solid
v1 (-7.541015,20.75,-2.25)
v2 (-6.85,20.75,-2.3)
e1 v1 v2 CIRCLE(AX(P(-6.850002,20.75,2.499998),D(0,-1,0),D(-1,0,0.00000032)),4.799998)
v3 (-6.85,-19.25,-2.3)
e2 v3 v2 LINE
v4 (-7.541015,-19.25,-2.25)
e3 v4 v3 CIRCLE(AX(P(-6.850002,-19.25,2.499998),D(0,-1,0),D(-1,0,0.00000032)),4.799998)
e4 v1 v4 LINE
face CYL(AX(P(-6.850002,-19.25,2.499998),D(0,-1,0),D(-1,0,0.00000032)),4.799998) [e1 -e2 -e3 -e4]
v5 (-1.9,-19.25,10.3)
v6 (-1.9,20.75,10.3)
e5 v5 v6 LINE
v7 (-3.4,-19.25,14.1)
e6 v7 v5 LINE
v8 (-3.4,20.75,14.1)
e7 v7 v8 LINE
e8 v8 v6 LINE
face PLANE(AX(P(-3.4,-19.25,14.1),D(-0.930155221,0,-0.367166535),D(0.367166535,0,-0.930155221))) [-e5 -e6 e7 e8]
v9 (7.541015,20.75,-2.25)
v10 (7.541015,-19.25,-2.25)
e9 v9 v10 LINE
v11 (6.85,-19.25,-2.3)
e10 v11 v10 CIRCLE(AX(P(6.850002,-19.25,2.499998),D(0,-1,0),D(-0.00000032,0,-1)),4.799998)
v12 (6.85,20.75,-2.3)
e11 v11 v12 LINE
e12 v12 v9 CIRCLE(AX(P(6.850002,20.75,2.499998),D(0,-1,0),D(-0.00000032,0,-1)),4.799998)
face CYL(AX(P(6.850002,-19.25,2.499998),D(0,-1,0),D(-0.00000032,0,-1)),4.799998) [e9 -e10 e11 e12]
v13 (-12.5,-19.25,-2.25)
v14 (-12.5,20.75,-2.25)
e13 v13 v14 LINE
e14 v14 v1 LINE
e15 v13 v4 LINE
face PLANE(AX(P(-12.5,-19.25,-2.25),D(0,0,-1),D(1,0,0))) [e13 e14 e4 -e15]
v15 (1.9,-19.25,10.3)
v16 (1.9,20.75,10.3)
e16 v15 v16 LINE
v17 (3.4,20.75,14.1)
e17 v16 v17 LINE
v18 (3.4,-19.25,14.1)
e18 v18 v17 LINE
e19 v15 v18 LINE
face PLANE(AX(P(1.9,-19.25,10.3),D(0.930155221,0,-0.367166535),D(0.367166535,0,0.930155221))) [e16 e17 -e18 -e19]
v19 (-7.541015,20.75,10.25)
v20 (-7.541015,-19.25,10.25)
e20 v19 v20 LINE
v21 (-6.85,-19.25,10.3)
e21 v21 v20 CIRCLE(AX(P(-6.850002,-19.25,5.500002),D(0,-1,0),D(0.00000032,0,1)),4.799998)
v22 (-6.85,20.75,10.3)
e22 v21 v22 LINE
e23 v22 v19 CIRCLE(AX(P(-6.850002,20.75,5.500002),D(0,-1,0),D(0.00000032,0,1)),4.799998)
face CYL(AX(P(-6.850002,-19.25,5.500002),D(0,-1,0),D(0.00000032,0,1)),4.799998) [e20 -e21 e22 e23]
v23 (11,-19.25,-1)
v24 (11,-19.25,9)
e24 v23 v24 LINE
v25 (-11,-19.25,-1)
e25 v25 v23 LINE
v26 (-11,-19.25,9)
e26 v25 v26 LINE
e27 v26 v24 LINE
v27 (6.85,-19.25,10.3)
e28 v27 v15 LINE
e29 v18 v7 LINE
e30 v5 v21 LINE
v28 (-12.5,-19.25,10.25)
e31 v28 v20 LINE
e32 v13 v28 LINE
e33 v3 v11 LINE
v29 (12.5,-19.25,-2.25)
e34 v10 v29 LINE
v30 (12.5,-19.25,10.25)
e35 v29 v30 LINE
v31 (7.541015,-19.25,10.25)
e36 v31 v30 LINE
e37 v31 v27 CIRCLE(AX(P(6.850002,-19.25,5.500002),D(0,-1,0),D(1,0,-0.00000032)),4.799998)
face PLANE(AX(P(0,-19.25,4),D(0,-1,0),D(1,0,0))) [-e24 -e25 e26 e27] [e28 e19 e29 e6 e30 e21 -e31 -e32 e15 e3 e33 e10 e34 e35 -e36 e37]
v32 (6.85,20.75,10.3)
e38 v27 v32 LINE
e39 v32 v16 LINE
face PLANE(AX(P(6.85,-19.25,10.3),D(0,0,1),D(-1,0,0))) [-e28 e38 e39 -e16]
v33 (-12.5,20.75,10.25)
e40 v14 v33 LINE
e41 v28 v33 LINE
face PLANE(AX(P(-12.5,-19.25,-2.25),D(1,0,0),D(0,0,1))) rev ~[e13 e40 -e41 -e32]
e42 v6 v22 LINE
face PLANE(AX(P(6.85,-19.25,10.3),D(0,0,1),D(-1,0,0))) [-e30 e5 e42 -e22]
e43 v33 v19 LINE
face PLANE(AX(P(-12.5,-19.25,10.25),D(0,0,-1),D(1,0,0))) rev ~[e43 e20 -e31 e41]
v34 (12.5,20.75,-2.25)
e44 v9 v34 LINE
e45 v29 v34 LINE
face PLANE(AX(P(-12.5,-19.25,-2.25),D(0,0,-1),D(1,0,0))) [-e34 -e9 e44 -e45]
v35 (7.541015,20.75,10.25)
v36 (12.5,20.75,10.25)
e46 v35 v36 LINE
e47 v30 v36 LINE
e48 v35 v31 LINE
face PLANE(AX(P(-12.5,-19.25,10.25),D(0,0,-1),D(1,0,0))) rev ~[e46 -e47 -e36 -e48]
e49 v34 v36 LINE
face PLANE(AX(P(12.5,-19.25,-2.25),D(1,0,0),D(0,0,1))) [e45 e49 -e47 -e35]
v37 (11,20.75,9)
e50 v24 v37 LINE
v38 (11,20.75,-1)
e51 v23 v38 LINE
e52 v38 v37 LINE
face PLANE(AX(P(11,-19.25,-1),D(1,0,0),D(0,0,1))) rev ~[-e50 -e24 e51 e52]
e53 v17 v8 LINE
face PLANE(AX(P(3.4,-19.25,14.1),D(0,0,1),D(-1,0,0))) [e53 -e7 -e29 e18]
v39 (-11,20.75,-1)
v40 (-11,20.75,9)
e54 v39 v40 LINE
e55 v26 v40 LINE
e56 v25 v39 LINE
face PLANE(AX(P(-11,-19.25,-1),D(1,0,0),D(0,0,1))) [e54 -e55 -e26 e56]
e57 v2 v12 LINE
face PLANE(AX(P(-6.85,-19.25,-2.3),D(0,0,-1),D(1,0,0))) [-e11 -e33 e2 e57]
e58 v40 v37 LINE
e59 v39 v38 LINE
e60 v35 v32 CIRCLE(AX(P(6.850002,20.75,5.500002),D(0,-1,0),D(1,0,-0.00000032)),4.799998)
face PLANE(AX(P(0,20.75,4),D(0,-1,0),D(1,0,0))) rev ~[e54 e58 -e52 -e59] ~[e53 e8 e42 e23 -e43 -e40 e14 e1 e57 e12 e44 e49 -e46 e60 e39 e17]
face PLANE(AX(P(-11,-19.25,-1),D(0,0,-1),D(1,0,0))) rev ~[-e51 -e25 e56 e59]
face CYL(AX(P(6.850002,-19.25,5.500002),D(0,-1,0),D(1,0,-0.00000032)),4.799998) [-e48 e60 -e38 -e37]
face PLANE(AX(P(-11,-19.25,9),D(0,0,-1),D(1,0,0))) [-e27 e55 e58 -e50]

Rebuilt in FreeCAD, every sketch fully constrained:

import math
import FreeCAD as App
import Part
import Sketcher


def edges_at(feature, points):
    """Names of the edges that pass closest to the given points."""
    edges = feature.Shape.Edges
    near = lambda p: min(range(len(edges)), key=lambda i: edges[i].distToShape(Part.Vertex(*p))[0])
    return sorted({f"Edge{near(p) + 1}" for p in points})


def add_polygon(sketch, points):
    """Adds a closed chain of lines whose ends are joined by coincident constraints."""
    first, n = sketch.GeometryCount, len(points)
    for a, b in zip(points, points[1:] + points[:1]):
        sketch.addGeometry(Part.LineSegment(App.Vector(*a, 0), App.Vector(*b, 0)), False)
    for i in range(n):
        sketch.addConstraint(Sketcher.Constraint("Coincident", first + i, 2, first + (i + 1) % n, 1))

doc = App.newDocument("Part")
body = doc.addObject("PartDesign::Body", "Body")

sketch1 = doc.addObject("Sketcher::SketchObject", "Sketch")
body.addObject(sketch1)
sketch1.AttachmentSupport = (doc.XY_Plane, [""])
sketch1.MapMode = "FlatFace"
add_polygon(sketch1, [(-9.35, 19.25), (-9.35, -19.25), (9.35, -19.25), (9.35, 19.25)])
sketch1.addConstraint([
    Sketcher.Constraint("Vertical", 0),
    Sketcher.Constraint("Horizontal", 1),
    Sketcher.Constraint("Vertical", 2),
    Sketcher.Constraint("Horizontal", 3),
    Sketcher.Constraint("Symmetric", 0, 2, 2, 2, -1, 1),
    Sketcher.Constraint("DistanceX", 1, 1, 1, 2, 18.7),
    Sketcher.Constraint("DistanceY", 0, 2, 0, 1, 38.5),
])
pad1 = doc.addObject("PartDesign::Pad", "Pad")
body.addObject(pad1)
pad1.Profile = sketch1
pad1.Length = 8
doc.recompute()

fillet = doc.addObject("PartDesign::Fillet", "Fillet")
body.addObject(fillet)
fillet.Base = (pad1, edges_at(pad1, [
    (9.35, 0, 8),
    (9.35, 0, 0),
    (-9.35, 0, 8),
    (-9.35, 0, 0),
]))
fillet.Radius = 2.5
body2 = doc.addObject("PartDesign::Body", "Body001")

sketch2 = doc.addObject("Sketcher::SketchObject", "Sketch001")
body2.addObject(sketch2)
sketch2.AttachmentSupport = (doc.getObject("XZ_Plane001"), [""])
sketch2.MapMode = "FlatFace"
sketch2.AttachmentOffset = App.Placement(App.Vector(0, 0, 19.25), App.Rotation())
sketch2.addGeometry([
    Part.LineSegment(App.Vector(-11.65, 5.5, 0), App.Vector(-11.65, 2.5, 0)),
    Part.ArcOfCircle(Part.Circle(App.Vector(-6.850002, 2.499998, 0), App.Vector(0, 0, 1), 4.799998), math.radians(179.999982), math.radians(270.000018)),
    Part.LineSegment(App.Vector(-6.85, -2.3, 0), App.Vector(6.85, -2.3, 0)),
    Part.ArcOfCircle(Part.Circle(App.Vector(6.850002, 2.499998, 0), App.Vector(0, 0, 1), 4.799998), math.radians(-90.000018), math.radians(0.000018)),
    Part.LineSegment(App.Vector(11.65, 2.5, 0), App.Vector(11.65, 5.5, 0)),
    Part.ArcOfCircle(Part.Circle(App.Vector(6.850002, 5.500002, 0), App.Vector(0, 0, 1), 4.799998), math.radians(-0.000018), math.radians(90.000018)),
    Part.LineSegment(App.Vector(6.85, 10.3, 0), App.Vector(-6.85, 10.3, 0)),
    Part.ArcOfCircle(Part.Circle(App.Vector(-6.850002, 5.500002, 0), App.Vector(0, 0, 1), 4.799998), math.radians(89.999982), math.radians(180.000018)),
    Part.ArcOfCircle(Part.Circle(App.Vector(-6.85, 5.5, 0), App.Vector(0, 0, 1), 2.8), math.radians(89.999999), math.radians(180.000001)),
    Part.LineSegment(App.Vector(-6.85, 8.3, 0), App.Vector(6.85, 8.3, 0)),
    Part.ArcOfCircle(Part.Circle(App.Vector(6.85, 5.5, 0), App.Vector(0, 0, 1), 2.8), math.radians(-0.000001), math.radians(90.000001)),
    Part.LineSegment(App.Vector(9.65, 5.5, 0), App.Vector(9.65, 2.5, 0)),
    Part.ArcOfCircle(Part.Circle(App.Vector(6.85, 2.5, 0), App.Vector(0, 0, 1), 2.8), math.radians(-90.000001), math.radians(0.000001)),
    Part.LineSegment(App.Vector(6.85, -0.3, 0), App.Vector(-6.85, -0.3, 0)),
    Part.ArcOfCircle(Part.Circle(App.Vector(-6.85, 2.5, 0), App.Vector(0, 0, 1), 2.8), math.radians(179.999999), math.radians(270.000001)),
    Part.LineSegment(App.Vector(-9.65, 2.5, 0), App.Vector(-9.65, 5.5, 0)),
], False)
sketch2.addConstraint([
    Sketcher.Constraint("Tangent", 0, 2, 1, 1),
    Sketcher.Constraint("Tangent", 1, 2, 2, 1),
    Sketcher.Constraint("Tangent", 2, 2, 3, 1),
    Sketcher.Constraint("Tangent", 3, 2, 4, 1),
    Sketcher.Constraint("Tangent", 4, 2, 5, 1),
    Sketcher.Constraint("Tangent", 5, 2, 6, 1),
    Sketcher.Constraint("Tangent", 6, 2, 7, 1),
    Sketcher.Constraint("Tangent", 7, 2, 0, 1),
    Sketcher.Constraint("Tangent", 8, 1, 9, 1),
    Sketcher.Constraint("Tangent", 9, 2, 10, 2),
    Sketcher.Constraint("Tangent", 10, 1, 11, 1),
    Sketcher.Constraint("Tangent", 11, 2, 12, 2),
    Sketcher.Constraint("Tangent", 12, 1, 13, 1),
    Sketcher.Constraint("Tangent", 13, 2, 14, 2),
    Sketcher.Constraint("Tangent", 14, 1, 15, 1),
    Sketcher.Constraint("Tangent", 15, 2, 8, 2),
    Sketcher.Constraint("Vertical", 0),
    Sketcher.Constraint("Horizontal", 2),
    Sketcher.Constraint("Vertical", 4),
    Sketcher.Constraint("Horizontal", 6),
    Sketcher.Constraint("Horizontal", 9),
    Sketcher.Constraint("Vertical", 11),
    Sketcher.Constraint("Horizontal", 13),
    Sketcher.Constraint("Vertical", 15),
    Sketcher.Constraint("Coincident", 8, 3, 7, 3),
    Sketcher.Constraint("Coincident", 10, 3, 5, 3),
    Sketcher.Constraint("Coincident", 12, 3, 3, 3),
    Sketcher.Constraint("Equal", 1, 3),
    Sketcher.Constraint("Equal", 3, 5),
    Sketcher.Constraint("Equal", 5, 7),
    Sketcher.Constraint("Equal", 12, 14),
    Sketcher.Constraint("Radius", 1, 4.799998),
    Sketcher.Constraint("Radius", 8, 2.8),
    Sketcher.Constraint("DistanceY", 0, 2, 0, 1, 3.0),
    Sketcher.Constraint("DistanceX", 2, 1, 2, 2, 13.7),
    Sketcher.Constraint("DistanceY", -1, 1, 1, 3, 2.499998),
    Sketcher.Constraint("DistanceX", 1, 3, -1, 1, 6.850002),
])
pad2 = doc.addObject("PartDesign::Pad", "Pad001")
body2.addObject(pad2)
pad2.Profile = sketch2
pad2.Length = 40
pad2.Reversed = True

sketch3 = doc.addObject("Sketcher::SketchObject", "Sketch002")
body2.addObject(sketch3)
sketch3.AttachmentSupport = (doc.getObject("XZ_Plane001"), [""])
sketch3.MapMode = "FlatFace"
sketch3.AttachmentOffset = App.Placement(App.Vector(0, 0, 19.25), App.Rotation())
add_polygon(sketch3, [(3.4, 14.1), (-3.4, 14.1), (-1.9, 10.3), (1.9, 10.3)])
sketch3.addConstraint([
    Sketcher.Constraint("Horizontal", 0),
    Sketcher.Constraint("Horizontal", 2),
    Sketcher.Constraint("Equal", 1, 3),
    Sketcher.Constraint("DistanceX", 0, 2, 0, 1, 6.8),
    Sketcher.Constraint("DistanceX", 2, 1, 2, 2, 3.8),
    Sketcher.Constraint("DistanceX", 0, 2, -1, 1, 3.4),
    Sketcher.Constraint("DistanceY", -1, 1, 0, 2, 14.1),
    Sketcher.Constraint("DistanceY", -1, 1, 1, 2, 10.3),
])
pad3 = doc.addObject("PartDesign::Pad", "Pad002")
body2.addObject(pad3)
pad3.Profile = sketch3
pad3.Length = 40
pad3.Reversed = True

sketch4 = doc.addObject("Sketcher::SketchObject", "Sketch003")
body2.addObject(sketch4)
sketch4.AttachmentSupport = (doc.getObject("XZ_Plane001"), [""])
sketch4.MapMode = "FlatFace"
sketch4.AttachmentOffset = App.Placement(App.Vector(0, 0, 19.25), App.Rotation())
add_polygon(sketch4, [(-12.5, 10.25), (-12.5, -2.25), (12.5, -2.25), (12.5, 10.25)])
sketch4.addConstraint([
    Sketcher.Constraint("Vertical", 0),
    Sketcher.Constraint("Horizontal", 1),
    Sketcher.Constraint("Vertical", 2),
    Sketcher.Constraint("Horizontal", 3),
    Sketcher.Constraint("DistanceX", 1, 1, 1, 2, 25.0),
    Sketcher.Constraint("DistanceY", 0, 2, 0, 1, 12.5),
    Sketcher.Constraint("DistanceX", 0, 2, -1, 1, 12.5),
    Sketcher.Constraint("DistanceY", 0, 2, -1, 1, 2.25),
])
pad4 = doc.addObject("PartDesign::Pad", "Pad003")
body2.addObject(pad4)
pad4.Profile = sketch4
pad4.Length = 40
pad4.Reversed = True

sketch5 = doc.addObject("Sketcher::SketchObject", "Sketch004")
body2.addObject(sketch5)
sketch5.AttachmentSupport = (doc.getObject("XZ_Plane001"), [""])
sketch5.MapMode = "FlatFace"
sketch5.AttachmentOffset = App.Placement(App.Vector(0, 0, 19.25), App.Rotation())
add_polygon(sketch5, [(-11, 9), (-11, -1), (11, -1), (11, 9)])
sketch5.addConstraint([
    Sketcher.Constraint("Vertical", 0),
    Sketcher.Constraint("Horizontal", 1),
    Sketcher.Constraint("Vertical", 2),
    Sketcher.Constraint("Horizontal", 3),
    Sketcher.Constraint("DistanceX", 1, 1, 1, 2, 22.0),
    Sketcher.Constraint("DistanceY", 0, 2, 0, 1, 10.0),
    Sketcher.Constraint("DistanceX", 0, 2, -1, 1, 11.0),
    Sketcher.Constraint("DistanceY", 0, 2, -1, 1, 1.0),
])
pocket1 = doc.addObject("PartDesign::Pocket", "Pocket")
body2.addObject(pocket1)
pocket1.Profile = sketch5
pocket1.Length = 40
body.Visibility = False

doc.recompute()
